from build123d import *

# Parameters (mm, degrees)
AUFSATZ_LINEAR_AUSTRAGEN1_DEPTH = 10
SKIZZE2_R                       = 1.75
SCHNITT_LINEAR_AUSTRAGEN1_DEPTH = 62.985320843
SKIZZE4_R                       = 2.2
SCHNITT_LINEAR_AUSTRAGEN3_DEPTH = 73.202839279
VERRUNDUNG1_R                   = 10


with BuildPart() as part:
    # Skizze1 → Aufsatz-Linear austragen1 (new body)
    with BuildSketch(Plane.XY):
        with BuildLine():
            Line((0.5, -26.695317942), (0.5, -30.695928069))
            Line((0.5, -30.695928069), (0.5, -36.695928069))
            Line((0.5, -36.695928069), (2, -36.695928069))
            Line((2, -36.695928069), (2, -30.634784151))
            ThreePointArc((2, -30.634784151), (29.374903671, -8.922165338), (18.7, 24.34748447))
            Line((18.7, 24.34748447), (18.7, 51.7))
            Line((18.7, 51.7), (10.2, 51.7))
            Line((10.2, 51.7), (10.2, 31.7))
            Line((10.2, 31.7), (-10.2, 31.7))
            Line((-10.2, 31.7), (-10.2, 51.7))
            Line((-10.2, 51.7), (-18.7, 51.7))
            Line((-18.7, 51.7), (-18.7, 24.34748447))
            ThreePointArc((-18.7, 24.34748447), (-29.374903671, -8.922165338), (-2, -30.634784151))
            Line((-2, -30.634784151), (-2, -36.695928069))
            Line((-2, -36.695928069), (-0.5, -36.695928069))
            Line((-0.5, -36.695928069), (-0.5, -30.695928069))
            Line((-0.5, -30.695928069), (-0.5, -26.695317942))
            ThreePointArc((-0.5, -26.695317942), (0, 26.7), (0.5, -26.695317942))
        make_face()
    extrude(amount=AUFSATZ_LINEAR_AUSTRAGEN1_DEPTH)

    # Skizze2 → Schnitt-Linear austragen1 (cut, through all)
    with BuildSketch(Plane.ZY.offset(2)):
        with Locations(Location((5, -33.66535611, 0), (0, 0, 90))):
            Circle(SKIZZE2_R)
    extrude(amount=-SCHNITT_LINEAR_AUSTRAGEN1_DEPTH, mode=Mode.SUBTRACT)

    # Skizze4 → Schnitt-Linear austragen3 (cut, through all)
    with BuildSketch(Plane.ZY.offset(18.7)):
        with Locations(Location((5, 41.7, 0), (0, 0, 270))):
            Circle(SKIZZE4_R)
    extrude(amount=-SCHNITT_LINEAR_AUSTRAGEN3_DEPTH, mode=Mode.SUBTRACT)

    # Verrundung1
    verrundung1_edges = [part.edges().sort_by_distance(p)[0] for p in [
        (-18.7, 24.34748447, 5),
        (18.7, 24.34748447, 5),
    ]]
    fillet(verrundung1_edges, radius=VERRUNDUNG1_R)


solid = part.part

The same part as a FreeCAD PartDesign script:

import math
import FreeCAD as App
import Part
import Sketcher

V = App.Vector


def edges_at(feature, points):
    """Names of the edges that pass closest to the given points."""
    edges = feature.Shape.Edges
    near = lambda p: min(range(len(edges)), key=lambda i: edges[i].distToShape(Part.Vertex(*p))[0])
    return sorted({f"Edge{near(p) + 1}" for p in points})

doc = App.newDocument("Part")
body = doc.addObject("PartDesign::Body", "Body")

# Sketch on XY plane
sketch1 = body.newObject("Sketcher::SketchObject", "Sketch")
sketch1.AttachmentSupport = (doc.getObject("XY_Plane"), [""])
sketch1.MapMode = "FlatFace"
sketch1.addGeometry([
    Part.LineSegment(V(0.5, -26.7, 0), V(0.5, -36.7, 0)),  # 0
    Part.LineSegment(V(0.5, -36.7, 0), V(2, -36.7, 0)),  # 1
    Part.LineSegment(V(2, -36.7, 0), V(2, -30.6, 0)),  # 2
    Part.ArcOfCircle(Part.Circle(V(0, 0, 0), V(0, 0, 1), 30.7), math.radians(-86), math.radians(52)),  # 3
    Part.LineSegment(V(18.7, 24.3, 0), V(18.7, 51.7, 0)),  # 4
    Part.LineSegment(V(18.7, 51.7, 0), V(10.2, 51.7, 0)),  # 5
    Part.LineSegment(V(10.2, 51.7, 0), V(10.2, 31.7, 0)),  # 6
    Part.LineSegment(V(10.2, 31.7, 0), V(-10.2, 31.7, 0)),  # 7
    Part.LineSegment(V(-10.2, 31.7, 0), V(-10.2, 51.7, 0)),  # 8
    Part.LineSegment(V(-10.2, 51.7, 0), V(-18.7, 51.7, 0)),  # 9
    Part.LineSegment(V(-18.7, 51.7, 0), V(-18.7, 24.3, 0)),  # 10
    Part.ArcOfCircle(Part.Circle(V(0, 0, 0), V(0, 0, 1), 30.7), math.radians(128), math.radians(266)),  # 11
    Part.LineSegment(V(-2, -30.6, 0), V(-2, -36.7, 0)),  # 12
    Part.LineSegment(V(-2, -36.7, 0), V(-0.5, -36.7, 0)),  # 13
    Part.LineSegment(V(-0.5, -36.7, 0), V(-0.5, -26.7, 0)),  # 14
    Part.ArcOfCircle(Part.Circle(V(0, 0, 0), V(0, 0, 1), 26.7), math.radians(-89), math.radians(269)),  # 15
], False)
sketch1.addConstraint([
    Sketcher.Constraint("Coincident", 0, 2, 1, 1),
    Sketcher.Constraint("Coincident", 1, 2, 2, 1),
    Sketcher.Constraint("Coincident", 2, 2, 3, 1),
    Sketcher.Constraint("Coincident", 3, 2, 4, 1),
    Sketcher.Constraint("Coincident", 4, 2, 5, 1),
    Sketcher.Constraint("Coincident", 5, 2, 6, 1),
    Sketcher.Constraint("Coincident", 6, 2, 7, 1),
    Sketcher.Constraint("Coincident", 7, 2, 8, 1),
    Sketcher.Constraint("Coincident", 8, 2, 9, 1),
    Sketcher.Constraint("Coincident", 9, 2, 10, 1),
    Sketcher.Constraint("Coincident", 10, 2, 11, 1),
    Sketcher.Constraint("Coincident", 11, 2, 12, 1),
    Sketcher.Constraint("Coincident", 12, 2, 13, 1),
    Sketcher.Constraint("Coincident", 13, 2, 14, 1),
    Sketcher.Constraint("Coincident", 14, 2, 15, 2),
    Sketcher.Constraint("Coincident", 15, 1, 0, 1),
    Sketcher.Constraint("Vertical", 0),
    Sketcher.Constraint("Horizontal", 1),
    Sketcher.Constraint("Vertical", 2),
    Sketcher.Constraint("Vertical", 4),
    Sketcher.Constraint("Horizontal", 5),
    Sketcher.Constraint("Vertical", 6),
    Sketcher.Constraint("Horizontal", 7),
    Sketcher.Constraint("Vertical", 8),
    Sketcher.Constraint("Horizontal", 9),
    Sketcher.Constraint("Vertical", 10),
    Sketcher.Constraint("Vertical", 12),
    Sketcher.Constraint("Horizontal", 13),
    Sketcher.Constraint("Vertical", 14),
    Sketcher.Constraint("Coincident", 3, 3, -1, 1),
    Sketcher.Constraint("Coincident", 11, 3, -1, 1),
    Sketcher.Constraint("Coincident", 15, 3, -1, 1),
    Sketcher.Constraint("Equal", 3, 11),
    Sketcher.Constraint("Symmetric", 5, 2, 8, 2, -2),
    Sketcher.Constraint("Symmetric", 1, 2, 12, 2, -2),
    Sketcher.Constraint("Horizontal", 3, 2, 10, 2),
    Sketcher.Constraint("Horizontal", 14, 2, 15, 1),
    Sketcher.Constraint("Radius", 3, 30.7),
    Sketcher.Constraint("Radius", 15, 26.7),
    Sketcher.Constraint("DistanceY", 6, 2, 6, 1, 20.0),
    Sketcher.Constraint("DistanceX", 1, 1, 1, 2, 1.5),
    Sketcher.Constraint("DistanceX", 5, 2, 5, 1, 8.5),
    Sketcher.Constraint("DistanceX", 7, 2, 7, 1, 20.4),
    Sketcher.Constraint("DistanceX", -1, 1, 1, 2, 2.0),
    Sketcher.Constraint("DistanceY", -1, 1, 4, 2, 51.7),
    Sketcher.Constraint("DistanceY", 0, 2, 0, 1, 10.00061),
])
pad1 = body.newObject("PartDesign::Pad", "Pad")
pad1.Profile = sketch1
pad1.Length = 10

# Sketch on YZ plane
sketch2 = body.newObject("Sketcher::SketchObject", "Sketch001")
sketch2.AttachmentSupport = (doc.getObject("YZ_Plane"), [""])
sketch2.MapMode = "FlatFace"
sketch2.AttachmentOffset = App.Placement(V(0, 0, -2), App.Rotation())
sketch2.addGeometry(Part.Circle(V(-33.7, 5, 0), V(0, 0, 1), 1.8), False)
sketch2.addConstraint([
    Sketcher.Constraint("Diameter", 0, 3.5),
    Sketcher.Constraint("DistanceY", -1, 1, 0, 3, 5.0),
    Sketcher.Constraint("DistanceX", 0, 3, -1, 1, 33.665356),
])
pocket1 = body.newObject("PartDesign::Pocket", "Pocket")
pocket1.Profile = sketch2
pocket1.Type = "ThroughAll"
pocket1.Reversed = True

# Sketch on YZ plane
sketch3 = body.newObject("Sketcher::SketchObject", "Sketch002")
sketch3.AttachmentSupport = (doc.getObject("YZ_Plane"), [""])
sketch3.MapMode = "FlatFace"
sketch3.AttachmentOffset = App.Placement(V(0, 0, -18.7), App.Rotation())
sketch3.addGeometry(Part.Circle(V(41.7, 5, 0), V(0, 0, 1), 2.2), False)
sketch3.addConstraint([
    Sketcher.Constraint("Diameter", 0, 4.4),
    Sketcher.Constraint("DistanceY", -1, 1, 0, 3, 5.0),
    Sketcher.Constraint("DistanceX", -1, 1, 0, 3, 41.7),
])
pocket2 = body.newObject("PartDesign::Pocket", "Pocket001")
pocket2.Profile = sketch3
pocket2.Type = "ThroughAll"
pocket2.Reversed = True
doc.recompute()

fillet = body.newObject("PartDesign::Fillet", "Fillet")
fillet.Base = (pocket2, edges_at(pocket2, [(-18.7, 24.347, 5), (18.7, 24.347, 5)]))
fillet.Radius = 10

doc.recompute()
